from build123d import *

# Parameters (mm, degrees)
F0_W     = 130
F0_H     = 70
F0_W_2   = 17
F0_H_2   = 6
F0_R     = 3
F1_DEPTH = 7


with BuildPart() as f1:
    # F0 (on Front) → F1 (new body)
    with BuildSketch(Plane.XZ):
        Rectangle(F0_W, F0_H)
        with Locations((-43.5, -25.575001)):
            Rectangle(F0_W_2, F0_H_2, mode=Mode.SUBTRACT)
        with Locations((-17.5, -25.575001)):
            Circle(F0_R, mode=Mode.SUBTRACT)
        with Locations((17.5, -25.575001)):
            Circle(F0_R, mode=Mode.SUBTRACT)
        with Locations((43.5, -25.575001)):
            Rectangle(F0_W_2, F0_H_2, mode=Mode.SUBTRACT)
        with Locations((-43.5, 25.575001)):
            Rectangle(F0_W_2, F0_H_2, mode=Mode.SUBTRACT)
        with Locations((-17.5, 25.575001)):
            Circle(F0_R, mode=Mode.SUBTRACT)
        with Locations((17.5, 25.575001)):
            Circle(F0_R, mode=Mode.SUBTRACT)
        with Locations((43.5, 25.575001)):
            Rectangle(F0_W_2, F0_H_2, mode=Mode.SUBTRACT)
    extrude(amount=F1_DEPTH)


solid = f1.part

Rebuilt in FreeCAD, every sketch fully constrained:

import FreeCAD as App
import Part
import Sketcher

doc = App.newDocument("Part")
body = doc.addObject("PartDesign::Body", "Body")

# Sketch on XZ plane
sketch1 = body.newObject("Sketcher::SketchObject", "Sketch")
sketch1.AttachmentSupport = (doc.getObject("XZ_Plane"), [""])
sketch1.MapMode = "FlatFace"
sketch1.addGeometry([
    Part.LineSegment(App.Vector(-65, 35, 0), App.Vector(-65, -35, 0)),  # 0
    Part.LineSegment(App.Vector(-65, -35, 0), App.Vector(65, -35, 0)),  # 1
    Part.LineSegment(App.Vector(65, -35, 0), App.Vector(65, 35, 0)),  # 2
    Part.LineSegment(App.Vector(65, 35, 0), App.Vector(-65, 35, 0)),  # 3
    Part.LineSegment(App.Vector(-35, -28.6, 0), App.Vector(-52, -28.6, 0)),  # 4
    Part.LineSegment(App.Vector(-52, -28.6, 0), App.Vector(-52, -22.6, 0)),  # 5
    Part.LineSegment(App.Vector(-52, -22.6, 0), App.Vector(-35, -22.6, 0)),  # 6
    Part.LineSegment(App.Vector(-35, -22.6, 0), App.Vector(-35, -28.6, 0)),  # 7
    Part.Circle(App.Vector(-17.5, -25.6, 0), App.Vector(0, 0, 1), 3),  # 8
    Part.Circle(App.Vector(17.5, -25.6, 0), App.Vector(0, 0, 1), 3),  # 9
    Part.LineSegment(App.Vector(52, -28.6, 0), App.Vector(35, -28.6, 0)),  # 10
    Part.LineSegment(App.Vector(35, -28.6, 0), App.Vector(35, -22.6, 0)),  # 11
    Part.LineSegment(App.Vector(35, -22.6, 0), App.Vector(52, -22.6, 0)),  # 12
    Part.LineSegment(App.Vector(52, -22.6, 0), App.Vector(52, -28.6, 0)),  # 13
    Part.LineSegment(App.Vector(-35, 22.6, 0), App.Vector(-52, 22.6, 0)),  # 14
    Part.LineSegment(App.Vector(-52, 22.6, 0), App.Vector(-52, 28.6, 0)),  # 15
    Part.LineSegment(App.Vector(-52, 28.6, 0), App.Vector(-35, 28.6, 0)),  # 16
    Part.LineSegment(App.Vector(-35, 28.6, 0), App.Vector(-35, 22.6, 0)),  # 17
    Part.Circle(App.Vector(-17.5, 25.6, 0), App.Vector(0, 0, 1), 3),  # 18
    Part.Circle(App.Vector(17.5, 25.6, 0), App.Vector(0, 0, 1), 3),  # 19
    Part.LineSegment(App.Vector(52, 22.6, 0), App.Vector(35, 22.6, 0)),  # 20
    Part.LineSegment(App.Vector(35, 22.6, 0), App.Vector(35, 28.6, 0)),  # 21
    Part.LineSegment(App.Vector(35, 28.6, 0), App.Vector(52, 28.6, 0)),  # 22
    Part.LineSegment(App.Vector(52, 28.6, 0), App.Vector(52, 22.6, 0)),  # 23
], False)
sketch1.addConstraint([
    Sketcher.Constraint("Coincident", 0, 2, 1, 1),
    Sketcher.Constraint("Coincident", 1, 2, 2, 1),
    Sketcher.Constraint("Coincident", 2, 2, 3, 1),
    Sketcher.Constraint("Coincident", 3, 2, 0, 1),
    Sketcher.Constraint("Coincident", 4, 2, 5, 1),
    Sketcher.Constraint("Coincident", 5, 2, 6, 1),
    Sketcher.Constraint("Coincident", 6, 2, 7, 1),
    Sketcher.Constraint("Coincident", 7, 2, 4, 1),
    Sketcher.Constraint("Coincident", 10, 2, 11, 1),
    Sketcher.Constraint("Coincident", 11, 2, 12, 1),
    Sketcher.Constraint("Coincident", 12, 2, 13, 1),
    Sketcher.Constraint("Coincident", 13, 2, 10, 1),
    Sketcher.Constraint("Coincident", 14, 2, 15, 1),
    Sketcher.Constraint("Coincident", 15, 2, 16, 1),
    Sketcher.Constraint("Coincident", 16, 2, 17, 1),
    Sketcher.Constraint("Coincident", 17, 2, 14, 1),
    Sketcher.Constraint("Coincident", 20, 2, 21, 1),
    Sketcher.Constraint("Coincident", 21, 2, 22, 1),
    Sketcher.Constraint("Coincident", 22, 2, 23, 1),
    Sketcher.Constraint("Coincident", 23, 2, 20, 1),
    Sketcher.Constraint("Vertical", 0),
    Sketcher.Constraint("Horizontal", 1),
    Sketcher.Constraint("Vertical", 2),
    Sketcher.Constraint("Horizontal", 3),
    Sketcher.Constraint("Horizontal", 4),
    Sketcher.Constraint("Vertical", 5),
    Sketcher.Constraint("Horizontal", 6),
    Sketcher.Constraint("Vertical", 7),
    Sketcher.Constraint("Horizontal", 10),
    Sketcher.Constraint("Vertical", 11),
    Sketcher.Constraint("Horizontal", 12),
    Sketcher.Constraint("Vertical", 13),
    Sketcher.Constraint("Horizontal", 14),
    Sketcher.Constraint("Vertical", 15),
    Sketcher.Constraint("Horizontal", 16),
    Sketcher.Constraint("Vertical", 17),
    Sketcher.Constraint("Horizontal", 20),
    Sketcher.Constraint("Vertical", 21),
    Sketcher.Constraint("Horizontal", 22),
    Sketcher.Constraint("Vertical", 23),
    Sketcher.Constraint("Equal", 8, 9),
    Sketcher.Constraint("Equal", 9, 18),
    Sketcher.Constraint("Equal", 18, 19),
    Sketcher.Constraint("Symmetric", 9, 3, 18, 3, -1, 1),
    Sketcher.Constraint("Symmetric", 8, 3, 19, 3, -1, 1),
    Sketcher.Constraint("Symmetric", 0, 2, 2, 2, -1, 1),
    Sketcher.Constraint("Symmetric", 12, 2, 14, 2, -1, 1),
    Sketcher.Constraint("Symmetric", 10, 2, 16, 2, -1, 1),
    Sketcher.Constraint("Symmetric", 6, 2, 20, 2, -1, 1),
    Sketcher.Constraint("Symmetric", 4, 2, 22, 2, -1, 1),
    Sketcher.Constraint("Symmetric", 8, 3, 9, 3, -2),
    Sketcher.Constraint("Symmetric", 7, 2, 10, 2, -2),
    Sketcher.Constraint("Symmetric", 5, 2, 12, 2, -2),
    Sketcher.Constraint("Diameter", 8, 6.0),
    Sketcher.Constraint("DistanceX", 1, 1, 1, 2, 130.0),
    Sketcher.Constraint("DistanceX", 4, 2, 4, 1, 17.0),
    Sketcher.Constraint("DistanceY", 0, 2, 0, 1, 70.0),
    Sketcher.Constraint("DistanceY", 5, 1, 5, 2, 6.0),
    Sketcher.Constraint("DistanceX", 4, 2, -1, 1, 52.0),
    Sketcher.Constraint("DistanceX", 8, 3, 9, 3, 35.0),
    Sketcher.Constraint("DistanceY", 4, 2, 8, 3, 3.0),
    Sketcher.Constraint("DistanceY", 8, 3, -1, 1, 25.575001),
])
pad1 = body.newObject("PartDesign::Pad", "Pad")
pad1.Profile = sketch1
pad1.Length = 7

doc.recompute()
